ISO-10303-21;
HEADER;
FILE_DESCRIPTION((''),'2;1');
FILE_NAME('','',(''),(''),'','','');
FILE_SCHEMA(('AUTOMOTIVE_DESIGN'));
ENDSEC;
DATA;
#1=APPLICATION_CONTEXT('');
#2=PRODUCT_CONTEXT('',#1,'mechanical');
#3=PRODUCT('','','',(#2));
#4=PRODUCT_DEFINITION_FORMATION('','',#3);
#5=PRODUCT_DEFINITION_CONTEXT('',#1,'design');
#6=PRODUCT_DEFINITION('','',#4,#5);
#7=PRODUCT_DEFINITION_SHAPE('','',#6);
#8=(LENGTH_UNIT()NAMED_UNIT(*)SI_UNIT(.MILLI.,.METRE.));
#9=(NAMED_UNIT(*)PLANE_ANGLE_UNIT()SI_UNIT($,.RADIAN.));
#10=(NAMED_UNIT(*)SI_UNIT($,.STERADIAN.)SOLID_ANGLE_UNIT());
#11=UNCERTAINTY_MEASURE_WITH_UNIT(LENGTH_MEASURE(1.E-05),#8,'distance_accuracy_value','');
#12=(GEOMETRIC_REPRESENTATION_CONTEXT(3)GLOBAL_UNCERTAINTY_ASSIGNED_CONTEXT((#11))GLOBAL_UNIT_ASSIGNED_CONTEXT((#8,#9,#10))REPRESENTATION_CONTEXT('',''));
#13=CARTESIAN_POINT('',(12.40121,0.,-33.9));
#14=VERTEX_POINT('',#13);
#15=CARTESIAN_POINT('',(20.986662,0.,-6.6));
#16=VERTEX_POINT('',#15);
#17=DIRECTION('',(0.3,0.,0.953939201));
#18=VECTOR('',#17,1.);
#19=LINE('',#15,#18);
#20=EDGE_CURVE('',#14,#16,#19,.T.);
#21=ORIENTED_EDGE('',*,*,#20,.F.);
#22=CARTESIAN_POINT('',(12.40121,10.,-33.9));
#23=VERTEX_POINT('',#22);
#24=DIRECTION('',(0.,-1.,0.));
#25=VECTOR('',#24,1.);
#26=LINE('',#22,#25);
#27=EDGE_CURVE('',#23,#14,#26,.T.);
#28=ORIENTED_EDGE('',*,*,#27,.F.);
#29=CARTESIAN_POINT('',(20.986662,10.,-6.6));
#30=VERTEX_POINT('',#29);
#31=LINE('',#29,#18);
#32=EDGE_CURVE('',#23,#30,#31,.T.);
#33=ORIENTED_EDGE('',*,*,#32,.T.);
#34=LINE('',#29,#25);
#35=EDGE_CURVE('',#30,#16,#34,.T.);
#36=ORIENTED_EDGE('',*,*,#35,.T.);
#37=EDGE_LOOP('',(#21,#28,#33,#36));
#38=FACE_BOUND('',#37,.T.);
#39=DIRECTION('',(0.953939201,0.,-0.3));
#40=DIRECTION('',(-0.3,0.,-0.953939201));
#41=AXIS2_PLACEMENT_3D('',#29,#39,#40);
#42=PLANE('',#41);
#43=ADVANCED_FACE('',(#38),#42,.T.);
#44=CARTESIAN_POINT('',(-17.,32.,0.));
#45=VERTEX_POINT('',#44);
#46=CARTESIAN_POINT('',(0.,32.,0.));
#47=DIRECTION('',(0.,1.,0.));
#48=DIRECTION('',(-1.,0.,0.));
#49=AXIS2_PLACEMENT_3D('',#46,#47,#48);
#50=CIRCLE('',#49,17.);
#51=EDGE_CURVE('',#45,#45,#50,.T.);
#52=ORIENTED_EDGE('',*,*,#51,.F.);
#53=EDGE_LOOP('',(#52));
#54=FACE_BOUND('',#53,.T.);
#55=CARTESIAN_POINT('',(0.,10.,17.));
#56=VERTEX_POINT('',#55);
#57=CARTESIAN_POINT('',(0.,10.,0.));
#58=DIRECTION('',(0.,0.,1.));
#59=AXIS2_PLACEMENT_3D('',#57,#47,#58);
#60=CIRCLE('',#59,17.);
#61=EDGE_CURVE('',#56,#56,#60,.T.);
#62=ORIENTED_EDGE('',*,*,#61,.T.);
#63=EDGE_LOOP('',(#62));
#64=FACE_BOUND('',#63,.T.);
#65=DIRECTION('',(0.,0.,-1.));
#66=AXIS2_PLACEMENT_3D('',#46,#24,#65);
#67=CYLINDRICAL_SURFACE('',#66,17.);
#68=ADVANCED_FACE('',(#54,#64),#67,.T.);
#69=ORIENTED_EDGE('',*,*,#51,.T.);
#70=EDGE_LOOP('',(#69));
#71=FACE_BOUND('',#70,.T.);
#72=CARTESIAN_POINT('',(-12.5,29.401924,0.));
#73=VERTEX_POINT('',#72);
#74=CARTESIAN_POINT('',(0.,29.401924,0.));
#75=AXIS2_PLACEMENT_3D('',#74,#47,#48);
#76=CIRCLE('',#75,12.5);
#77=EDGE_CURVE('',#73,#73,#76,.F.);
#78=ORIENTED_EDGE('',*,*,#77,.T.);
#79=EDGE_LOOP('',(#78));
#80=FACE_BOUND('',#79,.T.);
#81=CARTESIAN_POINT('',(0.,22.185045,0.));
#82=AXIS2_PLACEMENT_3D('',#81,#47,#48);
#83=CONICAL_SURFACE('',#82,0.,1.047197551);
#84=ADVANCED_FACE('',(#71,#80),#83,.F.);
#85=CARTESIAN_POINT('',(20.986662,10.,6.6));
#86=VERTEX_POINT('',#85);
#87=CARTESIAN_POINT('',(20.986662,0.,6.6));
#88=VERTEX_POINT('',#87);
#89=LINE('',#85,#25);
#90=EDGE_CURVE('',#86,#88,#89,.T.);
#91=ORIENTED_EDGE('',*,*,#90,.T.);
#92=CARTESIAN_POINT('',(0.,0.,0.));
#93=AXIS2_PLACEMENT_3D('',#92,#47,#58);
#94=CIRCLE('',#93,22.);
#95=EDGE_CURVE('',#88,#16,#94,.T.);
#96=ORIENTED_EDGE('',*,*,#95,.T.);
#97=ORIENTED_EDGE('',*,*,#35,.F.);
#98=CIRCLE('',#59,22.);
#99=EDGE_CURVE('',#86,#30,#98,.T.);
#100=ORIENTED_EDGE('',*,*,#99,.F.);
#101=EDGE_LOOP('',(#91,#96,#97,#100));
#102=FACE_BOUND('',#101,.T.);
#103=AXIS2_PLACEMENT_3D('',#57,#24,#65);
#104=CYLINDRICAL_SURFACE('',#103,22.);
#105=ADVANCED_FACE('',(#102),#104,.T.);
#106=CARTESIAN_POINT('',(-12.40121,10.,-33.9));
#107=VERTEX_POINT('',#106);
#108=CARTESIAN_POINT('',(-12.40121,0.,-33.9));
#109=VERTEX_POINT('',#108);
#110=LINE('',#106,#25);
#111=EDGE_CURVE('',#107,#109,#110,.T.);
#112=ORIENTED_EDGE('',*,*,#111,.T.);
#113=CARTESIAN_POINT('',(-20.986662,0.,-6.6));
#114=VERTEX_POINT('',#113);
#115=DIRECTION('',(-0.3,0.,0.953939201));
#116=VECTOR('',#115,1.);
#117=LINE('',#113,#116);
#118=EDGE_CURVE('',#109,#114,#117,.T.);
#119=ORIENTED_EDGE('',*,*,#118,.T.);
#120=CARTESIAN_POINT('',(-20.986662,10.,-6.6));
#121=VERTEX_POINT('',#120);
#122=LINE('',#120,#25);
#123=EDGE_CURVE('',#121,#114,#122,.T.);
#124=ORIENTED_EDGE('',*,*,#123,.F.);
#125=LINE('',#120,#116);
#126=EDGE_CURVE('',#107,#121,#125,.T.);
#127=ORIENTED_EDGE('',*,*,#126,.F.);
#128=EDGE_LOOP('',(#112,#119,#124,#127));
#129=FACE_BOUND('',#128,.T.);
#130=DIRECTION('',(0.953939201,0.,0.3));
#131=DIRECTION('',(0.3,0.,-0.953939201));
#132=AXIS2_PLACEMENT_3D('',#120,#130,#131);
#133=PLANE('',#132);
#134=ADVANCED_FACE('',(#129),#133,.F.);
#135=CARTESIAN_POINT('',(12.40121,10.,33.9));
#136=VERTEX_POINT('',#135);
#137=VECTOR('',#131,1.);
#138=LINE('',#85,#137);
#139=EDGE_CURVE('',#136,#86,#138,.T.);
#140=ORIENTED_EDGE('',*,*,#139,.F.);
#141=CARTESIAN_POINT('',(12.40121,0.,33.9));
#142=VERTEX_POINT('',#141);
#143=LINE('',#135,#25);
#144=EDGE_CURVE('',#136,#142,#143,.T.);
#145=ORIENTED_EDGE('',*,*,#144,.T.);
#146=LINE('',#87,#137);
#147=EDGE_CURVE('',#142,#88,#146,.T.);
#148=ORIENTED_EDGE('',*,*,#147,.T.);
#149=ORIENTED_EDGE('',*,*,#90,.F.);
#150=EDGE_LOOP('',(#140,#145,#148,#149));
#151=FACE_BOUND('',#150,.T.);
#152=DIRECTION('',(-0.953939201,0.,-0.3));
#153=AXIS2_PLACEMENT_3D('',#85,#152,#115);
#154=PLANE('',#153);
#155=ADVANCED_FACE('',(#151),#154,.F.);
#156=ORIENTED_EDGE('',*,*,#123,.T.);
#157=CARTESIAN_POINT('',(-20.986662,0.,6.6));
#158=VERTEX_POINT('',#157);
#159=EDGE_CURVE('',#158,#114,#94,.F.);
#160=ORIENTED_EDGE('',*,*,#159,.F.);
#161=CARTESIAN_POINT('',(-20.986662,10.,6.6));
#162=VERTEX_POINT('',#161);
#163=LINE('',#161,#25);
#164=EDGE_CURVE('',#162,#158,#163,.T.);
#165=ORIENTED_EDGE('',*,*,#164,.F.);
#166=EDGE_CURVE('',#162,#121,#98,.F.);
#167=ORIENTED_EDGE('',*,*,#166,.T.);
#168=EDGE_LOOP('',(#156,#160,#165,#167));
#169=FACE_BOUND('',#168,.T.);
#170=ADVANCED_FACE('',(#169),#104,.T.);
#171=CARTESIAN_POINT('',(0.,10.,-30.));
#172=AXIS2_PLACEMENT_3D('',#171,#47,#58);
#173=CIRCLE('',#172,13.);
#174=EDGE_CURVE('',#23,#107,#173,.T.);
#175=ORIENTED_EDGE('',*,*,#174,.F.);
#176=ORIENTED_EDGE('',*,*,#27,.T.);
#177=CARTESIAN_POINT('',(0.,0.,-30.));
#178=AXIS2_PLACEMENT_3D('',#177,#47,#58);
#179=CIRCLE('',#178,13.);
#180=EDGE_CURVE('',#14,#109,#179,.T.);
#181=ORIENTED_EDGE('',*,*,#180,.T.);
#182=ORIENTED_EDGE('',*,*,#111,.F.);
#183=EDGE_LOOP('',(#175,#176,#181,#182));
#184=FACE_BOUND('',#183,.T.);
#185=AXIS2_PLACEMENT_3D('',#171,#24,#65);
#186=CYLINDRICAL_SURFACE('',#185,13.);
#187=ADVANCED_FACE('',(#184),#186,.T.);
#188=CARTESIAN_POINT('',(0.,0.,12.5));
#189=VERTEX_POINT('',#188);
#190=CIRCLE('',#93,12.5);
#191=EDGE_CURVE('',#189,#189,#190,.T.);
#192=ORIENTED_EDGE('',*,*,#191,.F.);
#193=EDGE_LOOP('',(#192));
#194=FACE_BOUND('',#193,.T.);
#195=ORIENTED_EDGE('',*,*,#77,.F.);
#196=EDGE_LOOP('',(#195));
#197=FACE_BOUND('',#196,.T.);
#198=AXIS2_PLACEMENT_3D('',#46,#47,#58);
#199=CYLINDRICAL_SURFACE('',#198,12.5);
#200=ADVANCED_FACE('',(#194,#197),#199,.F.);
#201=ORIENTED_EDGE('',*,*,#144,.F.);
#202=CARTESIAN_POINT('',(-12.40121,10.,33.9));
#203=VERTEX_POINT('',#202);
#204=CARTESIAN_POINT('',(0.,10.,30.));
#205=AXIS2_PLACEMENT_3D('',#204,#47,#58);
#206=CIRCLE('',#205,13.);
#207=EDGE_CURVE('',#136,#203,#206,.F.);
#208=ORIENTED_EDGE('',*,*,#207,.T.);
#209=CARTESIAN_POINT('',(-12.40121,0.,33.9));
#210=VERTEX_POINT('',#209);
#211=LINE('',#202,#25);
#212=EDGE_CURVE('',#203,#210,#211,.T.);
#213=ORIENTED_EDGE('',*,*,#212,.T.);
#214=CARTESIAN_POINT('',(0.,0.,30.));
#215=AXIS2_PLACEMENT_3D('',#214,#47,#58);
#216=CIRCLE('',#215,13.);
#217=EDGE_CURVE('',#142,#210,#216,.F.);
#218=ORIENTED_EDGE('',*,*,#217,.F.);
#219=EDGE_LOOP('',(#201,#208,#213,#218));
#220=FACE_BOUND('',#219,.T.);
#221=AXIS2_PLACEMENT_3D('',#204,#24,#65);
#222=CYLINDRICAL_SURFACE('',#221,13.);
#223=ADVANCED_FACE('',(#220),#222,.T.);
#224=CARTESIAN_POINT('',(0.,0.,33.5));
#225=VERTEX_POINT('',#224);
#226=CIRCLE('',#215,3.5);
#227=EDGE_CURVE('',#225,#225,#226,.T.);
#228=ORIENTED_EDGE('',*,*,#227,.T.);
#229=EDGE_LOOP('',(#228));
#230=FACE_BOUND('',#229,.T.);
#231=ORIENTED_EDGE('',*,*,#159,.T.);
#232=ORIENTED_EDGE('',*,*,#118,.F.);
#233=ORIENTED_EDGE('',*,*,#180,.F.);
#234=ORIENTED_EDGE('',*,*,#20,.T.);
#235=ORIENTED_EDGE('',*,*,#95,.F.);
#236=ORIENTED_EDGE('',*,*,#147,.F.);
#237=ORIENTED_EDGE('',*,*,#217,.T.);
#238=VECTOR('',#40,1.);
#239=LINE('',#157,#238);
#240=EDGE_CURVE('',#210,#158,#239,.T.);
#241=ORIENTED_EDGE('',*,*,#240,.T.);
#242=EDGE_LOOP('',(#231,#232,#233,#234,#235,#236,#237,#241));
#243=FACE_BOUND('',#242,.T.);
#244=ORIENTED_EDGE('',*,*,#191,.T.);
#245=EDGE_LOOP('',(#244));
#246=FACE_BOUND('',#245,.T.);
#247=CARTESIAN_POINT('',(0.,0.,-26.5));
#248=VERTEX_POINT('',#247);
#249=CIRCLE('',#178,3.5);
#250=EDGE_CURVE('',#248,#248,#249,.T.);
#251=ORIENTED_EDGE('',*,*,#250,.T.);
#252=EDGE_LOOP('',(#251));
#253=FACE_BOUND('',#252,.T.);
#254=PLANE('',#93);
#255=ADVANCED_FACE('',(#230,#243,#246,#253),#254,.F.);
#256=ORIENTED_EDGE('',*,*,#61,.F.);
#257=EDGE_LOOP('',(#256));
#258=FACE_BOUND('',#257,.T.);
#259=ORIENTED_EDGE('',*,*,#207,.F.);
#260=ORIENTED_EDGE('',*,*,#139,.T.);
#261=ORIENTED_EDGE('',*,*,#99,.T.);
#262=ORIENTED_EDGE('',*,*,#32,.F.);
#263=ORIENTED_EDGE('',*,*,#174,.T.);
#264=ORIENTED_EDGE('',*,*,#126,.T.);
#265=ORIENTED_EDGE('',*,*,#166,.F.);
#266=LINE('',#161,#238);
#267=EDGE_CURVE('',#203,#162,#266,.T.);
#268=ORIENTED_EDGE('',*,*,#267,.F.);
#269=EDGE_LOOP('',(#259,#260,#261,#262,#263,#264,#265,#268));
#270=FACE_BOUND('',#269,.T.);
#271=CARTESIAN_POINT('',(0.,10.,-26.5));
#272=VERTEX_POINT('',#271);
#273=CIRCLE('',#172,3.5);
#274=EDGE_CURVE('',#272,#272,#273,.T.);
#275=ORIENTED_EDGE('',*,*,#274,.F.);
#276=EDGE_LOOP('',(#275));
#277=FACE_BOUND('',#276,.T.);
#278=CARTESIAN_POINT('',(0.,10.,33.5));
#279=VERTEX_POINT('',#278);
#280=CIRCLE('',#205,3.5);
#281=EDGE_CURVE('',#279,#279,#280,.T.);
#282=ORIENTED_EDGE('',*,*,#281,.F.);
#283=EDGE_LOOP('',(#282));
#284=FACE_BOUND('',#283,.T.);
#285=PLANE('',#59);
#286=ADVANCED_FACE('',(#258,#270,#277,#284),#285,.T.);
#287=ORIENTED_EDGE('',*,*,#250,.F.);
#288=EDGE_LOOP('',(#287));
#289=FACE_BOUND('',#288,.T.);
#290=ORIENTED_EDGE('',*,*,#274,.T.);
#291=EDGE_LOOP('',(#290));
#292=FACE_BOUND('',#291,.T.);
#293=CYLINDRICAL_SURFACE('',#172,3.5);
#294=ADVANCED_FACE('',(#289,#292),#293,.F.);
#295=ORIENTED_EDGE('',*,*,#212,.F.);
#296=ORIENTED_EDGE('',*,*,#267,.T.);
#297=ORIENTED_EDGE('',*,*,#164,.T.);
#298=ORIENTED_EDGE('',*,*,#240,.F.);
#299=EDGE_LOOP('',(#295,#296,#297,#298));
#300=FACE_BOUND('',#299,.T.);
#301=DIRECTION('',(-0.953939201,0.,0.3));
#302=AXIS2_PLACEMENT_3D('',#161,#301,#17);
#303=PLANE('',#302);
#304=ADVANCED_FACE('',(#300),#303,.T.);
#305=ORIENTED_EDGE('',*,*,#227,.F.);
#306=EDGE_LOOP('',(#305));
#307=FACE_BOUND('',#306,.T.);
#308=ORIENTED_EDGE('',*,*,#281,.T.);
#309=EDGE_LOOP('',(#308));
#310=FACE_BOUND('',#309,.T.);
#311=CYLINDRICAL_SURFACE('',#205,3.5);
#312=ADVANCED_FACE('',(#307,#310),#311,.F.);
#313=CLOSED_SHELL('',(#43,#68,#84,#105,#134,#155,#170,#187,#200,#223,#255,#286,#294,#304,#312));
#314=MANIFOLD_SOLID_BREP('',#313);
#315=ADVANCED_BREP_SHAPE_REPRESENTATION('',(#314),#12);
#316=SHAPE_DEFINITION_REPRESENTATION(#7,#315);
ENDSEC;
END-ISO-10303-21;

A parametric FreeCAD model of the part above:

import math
import FreeCAD as App
import Part
import Sketcher
Q = App.Units.Quantity


def add_polygon(sketch, points):
    """Adds a closed chain of lines whose ends are joined by coincident constraints."""
    first, n = sketch.GeometryCount, len(points)
    for a, b in zip(points, points[1:] + points[:1]):
        sketch.addGeometry(Part.LineSegment(App.Vector(*a, 0), App.Vector(*b, 0)), False)
    for i in range(n):
        sketch.addConstraint(Sketcher.Constraint("Coincident", first + i, 2, first + (i + 1) % n, 1))

doc = App.newDocument("Part")
body = doc.addObject("PartDesign::Body", "Body")

# Sketch on XZ plane
sketch1 = body.newObject("Sketcher::SketchObject", "Sketch")
sketch1.AttachmentSupport = (doc.getObject("XZ_Plane"), [""])
sketch1.MapMode = "FlatFace"
sketch1.addGeometry(Part.ArcOfCircle(Part.Circle(App.Vector(0, -30, 0), App.Vector(0, 0, 1), 13), math.radians(-163), math.radians(-17)), False)
sketch1.addGeometry(Part.LineSegment(App.Vector(-12, -34, 0), App.Vector(-21, -7, 0)), False)
sketch1.addGeometry(Part.ArcOfCircle(Part.Circle(App.Vector(0, 0, 0), App.Vector(0, 0, 1), 22), math.radians(163), math.radians(197)), False)
sketch1.addGeometry(Part.LineSegment(App.Vector(-21, 7, 0), App.Vector(-12, 34, 0)), False)
sketch1.addGeometry(Part.ArcOfCircle(Part.Circle(App.Vector(0, 30, 0), App.Vector(0, 0, 1), 13), math.radians(17), math.radians(163)), False)
sketch1.addGeometry(Part.LineSegment(App.Vector(12, 34, 0), App.Vector(21, 7, 0)), False)
sketch1.addGeometry(Part.ArcOfCircle(Part.Circle(App.Vector(0, 0, 0), App.Vector(0, 0, 1), 22), math.radians(-17), math.radians(17)), False)
sketch1.addGeometry(Part.LineSegment(App.Vector(21, -7, 0), App.Vector(12, -34, 0)), False)
sketch1.addConstraint(Sketcher.Constraint("Tangent", 0, 1, 1, 1))
sketch1.addConstraint(Sketcher.Constraint("Tangent", 1, 2, 2, 2))
sketch1.addConstraint(Sketcher.Constraint("Tangent", 2, 1, 3, 1))
sketch1.addConstraint(Sketcher.Constraint("Tangent", 3, 2, 4, 2))
sketch1.addConstraint(Sketcher.Constraint("Tangent", 4, 1, 5, 1))
sketch1.addConstraint(Sketcher.Constraint("Tangent", 5, 2, 6, 2))
sketch1.addConstraint(Sketcher.Constraint("Tangent", 6, 1, 7, 1))
sketch1.addConstraint(Sketcher.Constraint("Tangent", 7, 2, 0, 2))
sketch1.addConstraint(Sketcher.Constraint("Coincident", 2, 3, -1, 1))
sketch1.addConstraint(Sketcher.Constraint("Coincident", 6, 3, -1, 1))
sketch1.addConstraint(Sketcher.Constraint("Equal", 0, 4))
sketch1.addConstraint(Sketcher.Constraint("Equal", 2, 6))
sketch1.addConstraint(Sketcher.Constraint("Symmetric", 0, 3, 4, 3, -1, 1))
sketch1.addConstraint(Sketcher.Constraint("PointOnObject", 0, 3, -2))
sketch1.addConstraint(Sketcher.Constraint("Radius", 0, Q("13 mm")))
sketch1.addConstraint(Sketcher.Constraint("Radius", 2, Q("22 mm")))
sketch1.addConstraint(Sketcher.Constraint("DistanceY", 0, 3, -1, 1, Q("30 mm")))
pad1 = body.newObject("PartDesign::Pad", "Pad")
pad1.Profile = sketch1
pad1.Length = 10
pad1.Reversed = True

# Sketch on XZ plane
sketch2 = body.newObject("Sketcher::SketchObject", "Sketch001")
sketch2.AttachmentSupport = (doc.getObject("XZ_Plane"), [""])
sketch2.MapMode = "FlatFace"
sketch2.AttachmentOffset = App.Placement(App.Vector(0, 0, -10), App.Rotation())
sketch2.addGeometry(Part.Circle(App.Vector(0, 0, 0), App.Vector(0, 0, 1), 17), False)
sketch2.addConstraint(Sketcher.Constraint("Coincident", 0, 3, -1, 1))
sketch2.addConstraint(Sketcher.Constraint("Diameter", 0, Q("34 mm")))
pad2 = body.newObject("PartDesign::Pad", "Pad001")
pad2.Profile = sketch2
pad2.Length = 22
pad2.Reversed = True

# Sketch on XZ plane
sketch3 = body.newObject("Sketcher::SketchObject", "Sketch002")
sketch3.AttachmentSupport = (doc.getObject("XZ_Plane"), [""])
sketch3.MapMode = "FlatFace"
sketch3.AttachmentOffset = App.Placement(App.Vector(0, 0, -10), App.Rotation())
sketch3.addGeometry(Part.Circle(App.Vector(0, -30, 0), App.Vector(0, 0, 1), 3.5), False)
sketch3.addGeometry(Part.Circle(App.Vector(0, 30, 0), App.Vector(0, 0, 1), 3.5), False)
sketch3.addConstraint(Sketcher.Constraint("Equal", 0, 1))
sketch3.addConstraint(Sketcher.Constraint("Symmetric", 0, 3, 1, 3, -1, 1))
sketch3.addConstraint(Sketcher.Constraint("PointOnObject", 0, 3, -2))
sketch3.addConstraint(Sketcher.Constraint("Diameter", 0, Q("7 mm")))
sketch3.addConstraint(Sketcher.Constraint("DistanceY", 0, 3, -1, 1, Q("30 mm")))
doc.recompute()
hole = body.newObject("PartDesign::Hole", "Hole")
hole.Profile = sketch3
hole.ThreadType = "None"
hole.Diameter = 7
hole.DepthType = "ThroughAll"
hole.Reversed = True

# Sketch on XZ plane
sketch4 = body.newObject("Sketcher::SketchObject", "Sketch003")
sketch4.AttachmentSupport = (doc.getObject("XZ_Plane"), [""])
sketch4.MapMode = "FlatFace"
sketch4.AttachmentOffset = App.Placement(App.Vector(0, 0, -32), App.Rotation())
sketch4.addGeometry(Part.Circle(App.Vector(0, 0, 0), App.Vector(0, 0, 1), 12), False)
sketch4.addConstraint(Sketcher.Constraint("Coincident", 0, 3, -1, 1))
sketch4.addConstraint(Sketcher.Constraint("Diameter", 0, Q("25 mm")))
doc.recompute()
hole2 = body.newObject("PartDesign::Hole", "Hole001")
hole2.Profile = sketch4
hole2.ThreadType = "None"
hole2.Diameter = 25
hole2.DepthType = "ThroughAll"
hole2.Reversed = True

# Sketch on XY plane
sketch5 = body.newObject("Sketcher::SketchObject", "Sketch004")
sketch5.AttachmentSupport = (doc.getObject("XY_Plane"), [""])
sketch5.MapMode = "FlatFace"
add_polygon(sketch5, [(0, 22), (17, 32), (17, 41), (0, 41)])  # lines 0-3
sketch5.addConstraint(Sketcher.Constraint("Vertical", 1))
sketch5.addConstraint(Sketcher.Constraint("Horizontal", 2))
sketch5.addConstraint(Sketcher.Constraint("Vertical", 3))
sketch5.addConstraint(Sketcher.Constraint("PointOnObject", 2, 2, -2))
sketch5.addConstraint(Sketcher.Constraint("DistanceX", 2, 2, 2, 1, Q("17 mm")))
sketch5.addConstraint(Sketcher.Constraint("Angle", 0, Q("30 deg")))
sketch5.addConstraint(Sketcher.Constraint("DistanceY", -1, 1, 0, 2, Q("32 mm")))
sketch5.addConstraint(Sketcher.Constraint("DistanceY", 1, 1, 1, 2, Q("8.592961 mm")))
groove = body.newObject("PartDesign::Groove", "Groove")
groove.Profile = sketch5
groove.ReferenceAxis = (sketch5, ["V_Axis"])
groove.Angle = 360

doc.recompute()
